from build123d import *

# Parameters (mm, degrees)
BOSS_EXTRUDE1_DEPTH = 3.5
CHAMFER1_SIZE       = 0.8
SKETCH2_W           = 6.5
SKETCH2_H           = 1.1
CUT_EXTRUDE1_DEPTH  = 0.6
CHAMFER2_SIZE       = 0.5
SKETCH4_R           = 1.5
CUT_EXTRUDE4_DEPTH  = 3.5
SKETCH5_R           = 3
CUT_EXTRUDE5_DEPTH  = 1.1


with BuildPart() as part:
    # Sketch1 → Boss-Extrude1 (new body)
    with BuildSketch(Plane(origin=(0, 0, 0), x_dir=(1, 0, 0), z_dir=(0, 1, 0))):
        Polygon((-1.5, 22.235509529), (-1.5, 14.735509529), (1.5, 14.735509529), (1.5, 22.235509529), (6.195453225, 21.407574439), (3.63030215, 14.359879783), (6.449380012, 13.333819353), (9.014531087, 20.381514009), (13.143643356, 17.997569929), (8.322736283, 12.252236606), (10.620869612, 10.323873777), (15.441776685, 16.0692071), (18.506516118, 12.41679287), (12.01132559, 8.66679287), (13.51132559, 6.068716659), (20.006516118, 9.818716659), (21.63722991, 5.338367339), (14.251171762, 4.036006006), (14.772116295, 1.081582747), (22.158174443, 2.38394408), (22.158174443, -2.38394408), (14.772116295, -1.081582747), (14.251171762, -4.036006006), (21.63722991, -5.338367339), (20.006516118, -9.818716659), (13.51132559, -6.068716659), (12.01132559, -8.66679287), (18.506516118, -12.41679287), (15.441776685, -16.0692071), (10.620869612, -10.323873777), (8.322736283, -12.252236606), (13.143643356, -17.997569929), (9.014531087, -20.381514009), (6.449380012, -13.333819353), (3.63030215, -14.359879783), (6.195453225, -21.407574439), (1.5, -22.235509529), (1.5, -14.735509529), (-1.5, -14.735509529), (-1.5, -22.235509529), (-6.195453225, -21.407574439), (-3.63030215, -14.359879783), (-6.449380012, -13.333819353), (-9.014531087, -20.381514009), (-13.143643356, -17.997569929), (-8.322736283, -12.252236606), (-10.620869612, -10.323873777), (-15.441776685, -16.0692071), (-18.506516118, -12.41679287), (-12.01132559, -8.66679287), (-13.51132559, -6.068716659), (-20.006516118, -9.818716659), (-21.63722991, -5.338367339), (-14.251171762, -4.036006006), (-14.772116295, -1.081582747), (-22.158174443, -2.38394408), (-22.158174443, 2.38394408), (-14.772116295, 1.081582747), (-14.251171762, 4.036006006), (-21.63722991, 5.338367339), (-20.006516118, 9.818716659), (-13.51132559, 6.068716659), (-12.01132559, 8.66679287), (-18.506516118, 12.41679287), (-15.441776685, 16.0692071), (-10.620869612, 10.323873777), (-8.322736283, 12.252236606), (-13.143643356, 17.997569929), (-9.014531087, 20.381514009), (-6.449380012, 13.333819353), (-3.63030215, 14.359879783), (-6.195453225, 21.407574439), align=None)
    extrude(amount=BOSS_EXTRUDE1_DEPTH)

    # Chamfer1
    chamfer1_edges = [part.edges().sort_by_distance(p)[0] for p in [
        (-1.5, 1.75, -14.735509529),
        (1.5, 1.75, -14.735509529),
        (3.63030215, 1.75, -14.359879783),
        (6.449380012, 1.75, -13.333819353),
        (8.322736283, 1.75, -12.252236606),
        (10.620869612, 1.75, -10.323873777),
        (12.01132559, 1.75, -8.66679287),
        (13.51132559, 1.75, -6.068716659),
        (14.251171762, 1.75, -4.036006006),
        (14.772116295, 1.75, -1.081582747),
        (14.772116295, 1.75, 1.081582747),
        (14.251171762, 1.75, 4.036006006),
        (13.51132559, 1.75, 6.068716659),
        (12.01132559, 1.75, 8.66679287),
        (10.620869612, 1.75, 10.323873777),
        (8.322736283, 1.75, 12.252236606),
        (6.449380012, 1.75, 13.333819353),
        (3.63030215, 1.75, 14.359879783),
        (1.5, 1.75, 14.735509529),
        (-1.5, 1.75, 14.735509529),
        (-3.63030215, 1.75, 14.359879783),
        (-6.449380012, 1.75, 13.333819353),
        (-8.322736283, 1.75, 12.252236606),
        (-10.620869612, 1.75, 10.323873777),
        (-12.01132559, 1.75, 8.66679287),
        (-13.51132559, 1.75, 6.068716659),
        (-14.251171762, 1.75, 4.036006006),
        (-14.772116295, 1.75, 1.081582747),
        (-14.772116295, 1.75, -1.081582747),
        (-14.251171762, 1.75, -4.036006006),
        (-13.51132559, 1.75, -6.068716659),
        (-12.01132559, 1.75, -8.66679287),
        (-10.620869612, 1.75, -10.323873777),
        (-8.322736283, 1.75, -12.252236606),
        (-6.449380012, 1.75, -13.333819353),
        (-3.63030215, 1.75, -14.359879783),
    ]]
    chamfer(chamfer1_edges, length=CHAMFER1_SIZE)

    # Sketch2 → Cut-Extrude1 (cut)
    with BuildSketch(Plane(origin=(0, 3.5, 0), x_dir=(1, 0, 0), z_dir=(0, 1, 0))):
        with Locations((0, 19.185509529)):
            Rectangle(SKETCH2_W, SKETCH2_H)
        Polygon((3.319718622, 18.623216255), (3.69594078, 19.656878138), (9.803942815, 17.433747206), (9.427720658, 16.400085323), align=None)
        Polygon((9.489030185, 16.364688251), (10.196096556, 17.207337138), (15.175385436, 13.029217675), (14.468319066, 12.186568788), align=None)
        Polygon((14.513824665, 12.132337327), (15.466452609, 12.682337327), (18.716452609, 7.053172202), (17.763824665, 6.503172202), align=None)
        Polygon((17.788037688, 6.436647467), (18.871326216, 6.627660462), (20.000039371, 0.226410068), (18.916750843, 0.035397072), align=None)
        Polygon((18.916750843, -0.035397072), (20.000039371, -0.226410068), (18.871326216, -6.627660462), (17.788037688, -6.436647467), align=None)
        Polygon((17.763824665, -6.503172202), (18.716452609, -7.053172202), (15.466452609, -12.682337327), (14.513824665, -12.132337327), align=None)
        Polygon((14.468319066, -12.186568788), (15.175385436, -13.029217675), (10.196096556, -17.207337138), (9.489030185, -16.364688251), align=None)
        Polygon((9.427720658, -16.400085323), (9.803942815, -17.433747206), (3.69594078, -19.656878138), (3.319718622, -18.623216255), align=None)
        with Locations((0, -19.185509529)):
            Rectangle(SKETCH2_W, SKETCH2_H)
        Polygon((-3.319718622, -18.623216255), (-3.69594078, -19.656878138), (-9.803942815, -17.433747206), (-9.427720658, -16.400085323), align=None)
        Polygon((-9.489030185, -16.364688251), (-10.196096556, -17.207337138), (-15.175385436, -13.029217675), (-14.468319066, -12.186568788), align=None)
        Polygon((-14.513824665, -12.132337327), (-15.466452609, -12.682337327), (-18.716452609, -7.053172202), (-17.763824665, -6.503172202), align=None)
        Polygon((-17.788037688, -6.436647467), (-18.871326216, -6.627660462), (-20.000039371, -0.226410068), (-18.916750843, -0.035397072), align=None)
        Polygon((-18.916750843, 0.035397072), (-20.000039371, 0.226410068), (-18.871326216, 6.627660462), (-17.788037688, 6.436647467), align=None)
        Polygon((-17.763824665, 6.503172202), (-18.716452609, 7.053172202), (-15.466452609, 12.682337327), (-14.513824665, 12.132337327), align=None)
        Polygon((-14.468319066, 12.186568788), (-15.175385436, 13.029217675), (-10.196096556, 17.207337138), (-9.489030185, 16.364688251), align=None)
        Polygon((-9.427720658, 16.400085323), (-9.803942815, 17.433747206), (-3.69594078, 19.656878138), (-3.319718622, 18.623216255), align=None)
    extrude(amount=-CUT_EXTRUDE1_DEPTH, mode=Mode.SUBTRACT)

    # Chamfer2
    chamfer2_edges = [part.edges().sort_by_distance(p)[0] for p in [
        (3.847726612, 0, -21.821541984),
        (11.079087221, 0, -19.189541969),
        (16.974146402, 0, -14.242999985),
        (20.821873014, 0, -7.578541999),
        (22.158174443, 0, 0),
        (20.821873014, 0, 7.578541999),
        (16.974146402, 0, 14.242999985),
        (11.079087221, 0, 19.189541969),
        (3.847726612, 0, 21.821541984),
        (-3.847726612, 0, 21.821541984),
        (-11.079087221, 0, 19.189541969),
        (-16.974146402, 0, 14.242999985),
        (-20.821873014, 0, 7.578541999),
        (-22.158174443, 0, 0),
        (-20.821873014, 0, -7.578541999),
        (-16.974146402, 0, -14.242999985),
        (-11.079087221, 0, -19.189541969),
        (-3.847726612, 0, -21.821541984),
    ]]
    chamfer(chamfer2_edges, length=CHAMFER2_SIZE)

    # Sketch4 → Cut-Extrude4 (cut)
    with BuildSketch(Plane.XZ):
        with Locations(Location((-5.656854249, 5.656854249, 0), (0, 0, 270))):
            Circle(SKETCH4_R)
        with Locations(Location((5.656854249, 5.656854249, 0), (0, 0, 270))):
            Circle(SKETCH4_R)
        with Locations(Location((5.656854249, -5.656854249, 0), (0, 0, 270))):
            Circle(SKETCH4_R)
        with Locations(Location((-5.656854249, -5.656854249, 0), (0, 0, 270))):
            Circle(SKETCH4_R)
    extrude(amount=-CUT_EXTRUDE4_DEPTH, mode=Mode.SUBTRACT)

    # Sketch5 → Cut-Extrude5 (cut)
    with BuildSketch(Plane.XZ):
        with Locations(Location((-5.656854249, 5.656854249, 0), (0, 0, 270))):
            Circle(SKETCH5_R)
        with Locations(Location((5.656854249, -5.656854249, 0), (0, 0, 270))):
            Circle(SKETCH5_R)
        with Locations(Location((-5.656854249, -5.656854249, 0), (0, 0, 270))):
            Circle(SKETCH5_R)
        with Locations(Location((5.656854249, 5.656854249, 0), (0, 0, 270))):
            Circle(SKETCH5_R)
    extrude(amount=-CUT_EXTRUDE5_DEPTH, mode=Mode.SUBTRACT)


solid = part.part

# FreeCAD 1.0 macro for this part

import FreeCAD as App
import Part
import Sketcher
Q = App.Units.Quantity


def edges_at(feature, points):
    """Names of the edges that pass closest to the given points."""
    edges = feature.Shape.Edges
    near = lambda p: min(range(len(edges)), key=lambda i: edges[i].distToShape(Part.Vertex(*p))[0])
    return sorted({f"Edge{near(p) + 1}" for p in points})


def add_polygon(sketch, points):
    """Adds a closed chain of lines whose ends are joined by coincident constraints."""
    first, n = sketch.GeometryCount, len(points)
    for a, b in zip(points, points[1:] + points[:1]):
        sketch.addGeometry(Part.LineSegment(App.Vector(*a, 0), App.Vector(*b, 0)), False)
    for i in range(n):
        sketch.addConstraint(Sketcher.Constraint("Coincident", first + i, 2, first + (i + 1) % n, 1))

doc = App.newDocument("Part")
body = doc.addObject("PartDesign::Body", "Body")

sketch1 = body.newObject("Sketcher::SketchObject", "Sketch")
sketch1.AttachmentSupport = (doc.getObject("XZ_Plane"), [""])
sketch1.MapMode = "FlatFace"
add_polygon(sketch1, [(-1.5, -14.7), (-1.5, -22.2), (-6.2, -21.4), (-3.6, -14.4), (-6.4, -13.3), (-9, -20.4), (-13.1, -18), (-8.3, -12.3), (-10.6, -10.3), (-15.4, -16.1), (-18.5, -12.4), (-12, -8.7), (-13.5, -6.1), (-20, -9.8), (-21.6, -5.3), (-14.3, -4), (-14.8, -1.1), (-22.2, -2.4), (-22.2, 2.4), (-14.8, 1.1), (-14.3, 4), (-21.6, 5.3), (-20, 9.8), (-13.5, 6.1), (-12, 8.7), (-18.5, 12.4), (-15.4, 16.1), (-10.6, 10.3), (-8.3, 12.3), (-13.1, 18), (-9, 20.4), (-6.4, 13.3), (-3.6, 14.4), (-6.2, 21.4), (-1.5, 22.2), (-1.5, 14.7), (1.5, 14.7), (1.5, 22.2), (6.2, 21.4), (3.6, 14.4), (6.4, 13.3), (9, 20.4), (13.1, 18), (8.3, 12.3), (10.6, 10.3), (15.4, 16.1), (18.5, 12.4), (12, 8.7), (13.5, 6.1), (20, 9.8), (21.6, 5.3), (14.3, 4), (14.8, 1.1), (22.2, 2.4), (22.2, -2.4), (14.8, -1.1), (14.3, -4), (21.6, -5.3), (20, -9.8), (13.5, -6.1), (12, -8.7), (18.5, -12.4), (15.4, -16.1), (10.6, -10.3), (8.3, -12.3), (13.1, -18), (9, -20.4), (6.4, -13.3), (3.6, -14.4), (6.2, -21.4), (1.5, -22.2), (1.5, -14.7)])
sketch1.addConstraint(Sketcher.Constraint("Vertical", 0))
sketch1.addConstraint(Sketcher.Constraint("Vertical", 17))
sketch1.addConstraint(Sketcher.Constraint("Vertical", 34))
sketch1.addConstraint(Sketcher.Constraint("Horizontal", 35))
sketch1.addConstraint(Sketcher.Constraint("Vertical", 36))
sketch1.addConstraint(Sketcher.Constraint("Vertical", 53))
sketch1.addConstraint(Sketcher.Constraint("Vertical", 70))
sketch1.addConstraint(Sketcher.Constraint("Horizontal", 71))
sketch1.addConstraint(Sketcher.Constraint("Symmetric", 0, 2, 36, 2, -1, 1))
sketch1.addConstraint(Sketcher.Constraint("Symmetric", 1, 2, 37, 2, -1, 1))
sketch1.addConstraint(Sketcher.Constraint("Symmetric", 2, 2, 38, 2, -1, 1))
sketch1.addConstraint(Sketcher.Constraint("Symmetric", 3, 2, 39, 2, -1, 1))
sketch1.addConstraint(Sketcher.Constraint("Symmetric", 4, 2, 40, 2, -1, 1))
sketch1.addConstraint(Sketcher.Constraint("Symmetric", 5, 2, 41, 2, -1, 1))
sketch1.addConstraint(Sketcher.Constraint("Symmetric", 6, 2, 42, 2, -1, 1))
sketch1.addConstraint(Sketcher.Constraint("Symmetric", 7, 2, 43, 2, -1, 1))
sketch1.addConstraint(Sketcher.Constraint("Symmetric", 8, 2, 44, 2, -1, 1))
sketch1.addConstraint(Sketcher.Constraint("Symmetric", 9, 2, 45, 2, -1, 1))
sketch1.addConstraint(Sketcher.Constraint("Symmetric", 10, 2, 46, 2, -1, 1))
sketch1.addConstraint(Sketcher.Constraint("Symmetric", 11, 2, 47, 2, -1, 1))
sketch1.addConstraint(Sketcher.Constraint("Symmetric", 12, 2, 48, 2, -1, 1))
sketch1.addConstraint(Sketcher.Constraint("Symmetric", 13, 2, 49, 2, -1, 1))
sketch1.addConstraint(Sketcher.Constraint("Symmetric", 14, 2, 50, 2, -1, 1))
sketch1.addConstraint(Sketcher.Constraint("Symmetric", 15, 2, 51, 2, -1, 1))
sketch1.addConstraint(Sketcher.Constraint("Symmetric", 16, 2, 52, 2, -1, 1))
sketch1.addConstraint(Sketcher.Constraint("Symmetric", 18, 2, 54, 2, -1, 1))
sketch1.addConstraint(Sketcher.Constraint("Symmetric", 19, 2, 55, 2, -1, 1))
sketch1.addConstraint(Sketcher.Constraint("Symmetric", 20, 2, 56, 2, -1, 1))
sketch1.addConstraint(Sketcher.Constraint("Symmetric", 21, 2, 57, 2, -1, 1))
sketch1.addConstraint(Sketcher.Constraint("Symmetric", 22, 2, 58, 2, -1, 1))
sketch1.addConstraint(Sketcher.Constraint("Symmetric", 23, 2, 59, 2, -1, 1))
sketch1.addConstraint(Sketcher.Constraint("Symmetric", 24, 2, 60, 2, -1, 1))
sketch1.addConstraint(Sketcher.Constraint("Symmetric", 25, 2, 61, 2, -1, 1))
sketch1.addConstraint(Sketcher.Constraint("Symmetric", 26, 2, 62, 2, -1, 1))
sketch1.addConstraint(Sketcher.Constraint("Symmetric", 27, 2, 63, 2, -1, 1))
sketch1.addConstraint(Sketcher.Constraint("Symmetric", 28, 2, 64, 2, -1, 1))
sketch1.addConstraint(Sketcher.Constraint("Symmetric", 29, 2, 65, 2, -1, 1))
sketch1.addConstraint(Sketcher.Constraint("Symmetric", 30, 2, 66, 2, -1, 1))
sketch1.addConstraint(Sketcher.Constraint("Symmetric", 31, 2, 67, 2, -1, 1))
sketch1.addConstraint(Sketcher.Constraint("Symmetric", 32, 2, 68, 2, -1, 1))
sketch1.addConstraint(Sketcher.Constraint("Symmetric", 33, 2, 69, 2, -1, 1))
sketch1.addConstraint(Sketcher.Constraint("Symmetric", 33, 2, 36, 2, -2))
sketch1.addConstraint(Sketcher.Constraint("Symmetric", 32, 2, 37, 2, -2))
sketch1.addConstraint(Sketcher.Constraint("Symmetric", 31, 2, 38, 2, -2))
sketch1.addConstraint(Sketcher.Constraint("Symmetric", 30, 2, 39, 2, -2))
sketch1.addConstraint(Sketcher.Constraint("Symmetric", 29, 2, 40, 2, -2))
sketch1.addConstraint(Sketcher.Constraint("Symmetric", 28, 2, 41, 2, -2))
sketch1.addConstraint(Sketcher.Constraint("Symmetric", 27, 2, 42, 2, -2))
sketch1.addConstraint(Sketcher.Constraint("Symmetric", 26, 2, 43, 2, -2))
sketch1.addConstraint(Sketcher.Constraint("Symmetric", 25, 2, 44, 2, -2))
sketch1.addConstraint(Sketcher.Constraint("Symmetric", 24, 2, 45, 2, -2))
sketch1.addConstraint(Sketcher.Constraint("Symmetric", 23, 2, 46, 2, -2))
sketch1.addConstraint(Sketcher.Constraint("Symmetric", 22, 2, 47, 2, -2))
sketch1.addConstraint(Sketcher.Constraint("Symmetric", 21, 2, 48, 2, -2))
sketch1.addConstraint(Sketcher.Constraint("Symmetric", 20, 2, 49, 2, -2))
sketch1.addConstraint(Sketcher.Constraint("Symmetric", 19, 2, 50, 2, -2))
sketch1.addConstraint(Sketcher.Constraint("Symmetric", 18, 2, 51, 2, -2))
sketch1.addConstraint(Sketcher.Constraint("Perpendicular", 2, 3))
sketch1.addConstraint(Sketcher.Constraint("Perpendicular", 3, 4))
sketch1.addConstraint(Sketcher.Constraint("Perpendicular", 6, 7))
sketch1.addConstraint(Sketcher.Constraint("Perpendicular", 7, 8))
sketch1.addConstraint(Sketcher.Constraint("Perpendicular", 10, 11))
sketch1.addConstraint(Sketcher.Constraint("Perpendicular", 11, 12))
sketch1.addConstraint(Sketcher.Constraint("Perpendicular", 14, 15))
sketch1.addConstraint(Sketcher.Constraint("Perpendicular", 15, 16))
sketch1.addConstraint(Sketcher.Constraint("Parallel", 1, 18))
sketch1.addConstraint(Sketcher.Constraint("Perpendicular", 18, 19))
sketch1.addConstraint(Sketcher.Constraint("Parallel", 4, 21))
sketch1.addConstraint(Sketcher.Constraint("Parallel", 5, 22))
sketch1.addConstraint(Sketcher.Constraint("Parallel", 8, 25))
sketch1.addConstraint(Sketcher.Constraint("Parallel", 37, 54))
sketch1.addConstraint(Sketcher.Constraint("Equal", 0, 34))
sketch1.addConstraint(Sketcher.Constraint("Equal", 2, 4))
sketch1.addConstraint(Sketcher.Constraint("Equal", 1, 5))
sketch1.addConstraint(Sketcher.Constraint("Equal", 4, 6))
sketch1.addConstraint(Sketcher.Constraint("Equal", 3, 7))
sketch1.addConstraint(Sketcher.Constraint("Equal", 6, 8))
sketch1.addConstraint(Sketcher.Constraint("Equal", 5, 9))
sketch1.addConstraint(Sketcher.Constraint("Equal", 8, 10))
sketch1.addConstraint(Sketcher.Constraint("Equal", 7, 11))
sketch1.addConstraint(Sketcher.Constraint("Equal", 10, 12))
sketch1.addConstraint(Sketcher.Constraint("Equal", 9, 13))
sketch1.addConstraint(Sketcher.Constraint("Equal", 12, 14))
sketch1.addConstraint(Sketcher.Constraint("Equal", 11, 15))
sketch1.addConstraint(Sketcher.Constraint("Equal", 14, 16))
sketch1.addConstraint(Sketcher.Constraint("DistanceX", 35, 1, 35, 2, 3.0))
sketch1.addConstraint(Sketcher.Constraint("Angle", 1, Q("170 deg")))
sketch1.addConstraint(Sketcher.Constraint("Angle", 2, Q("70 deg")))
sketch1.addConstraint(Sketcher.Constraint("Angle", 5, Q("150 deg")))
sketch1.addConstraint(Sketcher.Constraint("Angle", 6, Q("50 deg")))
sketch1.addConstraint(Sketcher.Constraint("Distance", 3, 3.0))
sketch1.addConstraint(Sketcher.Constraint("DistanceY", 0, 2, 0, 1, 7.5))
sketch1.addConstraint(Sketcher.Constraint("Distance", 2, 7.5))
sketch1.addConstraint(Sketcher.Constraint("DistanceY", 17, 1, 17, 2, 4.767888))
sketch1.addConstraint(Sketcher.Constraint("Distance", 1, 4.767888))
pad1 = body.newObject("PartDesign::Pad", "Pad")
pad1.Profile = sketch1
pad1.Length = 3.5
pad1.Reversed = True
doc.recompute()

chamfer = body.newObject("PartDesign::Chamfer", "Chamfer")
chamfer.Base = (pad1, edges_at(pad1, [
    (-1.5, 1.75, -14.736),
    (1.5, 1.75, -14.736),
    (3.63, 1.75, -14.36),
    (6.449, 1.75, -13.334),
    (8.323, 1.75, -12.252),
    (10.621, 1.75, -10.324),
    (12.011, 1.75, -8.667),
    (13.511, 1.75, -6.069),
    (14.251, 1.75, -4.036),
    (14.772, 1.75, -1.082),
    (14.772, 1.75, 1.082),
    (14.251, 1.75, 4.036),
    (13.511, 1.75, 6.069),
    (12.011, 1.75, 8.667),
    (10.621, 1.75, 10.324),
    (8.323, 1.75, 12.252),
    (6.449, 1.75, 13.334),
    (3.63, 1.75, 14.36),
    (1.5, 1.75, 14.736),
    (-1.5, 1.75, 14.736),
    (-3.63, 1.75, 14.36),
    (-6.449, 1.75, 13.334),
    (-8.323, 1.75, 12.252),
    (-10.621, 1.75, 10.324),
    (-12.011, 1.75, 8.667),
    (-13.511, 1.75, 6.069),
    (-14.251, 1.75, 4.036),
    (-14.772, 1.75, 1.082),
    (-14.772, 1.75, -1.082),
    (-14.251, 1.75, -4.036),
    (-13.511, 1.75, -6.069),
    (-12.011, 1.75, -8.667),
    (-10.621, 1.75, -10.324),
    (-8.323, 1.75, -12.252),
    (-6.449, 1.75, -13.334),
    (-3.63, 1.75, -14.36),
]))
chamfer.Size = 0.8

sketch2 = body.newObject("Sketcher::SketchObject", "Sketch001")
sketch2.AttachmentSupport = (doc.getObject("XZ_Plane"), [""])
sketch2.MapMode = "FlatFace"
sketch2.AttachmentOffset = App.Placement(App.Vector(0, 0, -3.5), App.Rotation())
add_polygon(sketch2, [(-3.2, -19.7), (-3.2, -18.6), (3.2, -18.6), (3.2, -19.7)])
add_polygon(sketch2, [(3.7, -19.7), (3.3, -18.6), (9.4, -16.4), (9.8, -17.4)])
add_polygon(sketch2, [(10.2, -17.2), (9.5, -16.4), (14.5, -12.2), (15.2, -13)])
add_polygon(sketch2, [(15.5, -12.7), (14.5, -12.1), (17.8, -6.5), (18.7, -7.1)])
add_polygon(sketch2, [(18.9, -6.6), (17.8, -6.4), (18.9, 0), (20, -0.2)])
add_polygon(sketch2, [(20, 0.2), (18.9, 0), (17.8, 6.4), (18.9, 6.6)])
add_polygon(sketch2, [(18.7, 7.1), (17.8, 6.5), (14.5, 12.1), (15.5, 12.7)])
add_polygon(sketch2, [(15.2, 13), (14.5, 12.2), (9.5, 16.4), (10.2, 17.2)])
add_polygon(sketch2, [(9.8, 17.4), (9.4, 16.4), (3.3, 18.6), (3.7, 19.7)])
add_polygon(sketch2, [(-3.2, 18.6), (-3.2, 19.7), (3.2, 19.7), (3.2, 18.6)])
add_polygon(sketch2, [(-3.7, 19.7), (-3.3, 18.6), (-9.4, 16.4), (-9.8, 17.4)])
add_polygon(sketch2, [(-10.2, 17.2), (-9.5, 16.4), (-14.5, 12.2), (-15.2, 13)])
add_polygon(sketch2, [(-15.5, 12.7), (-14.5, 12.1), (-17.8, 6.5), (-18.7, 7.1)])
add_polygon(sketch2, [(-18.9, 6.6), (-17.8, 6.4), (-18.9, 0), (-20, 0.2)])
add_polygon(sketch2, [(-20, -0.2), (-18.9, 0), (-17.8, -6.4), (-18.9, -6.6)])
add_polygon(sketch2, [(-18.7, -7.1), (-17.8, -6.5), (-14.5, -12.1), (-15.5, -12.7)])
add_polygon(sketch2, [(-15.2, -13), (-14.5, -12.2), (-9.5, -16.4), (-10.2, -17.2)])
add_polygon(sketch2, [(-9.8, -17.4), (-9.4, -16.4), (-3.3, -18.6), (-3.7, -19.7)])
sketch2.addConstraint(Sketcher.Constraint("Vertical", 0))
sketch2.addConstraint(Sketcher.Constraint("Horizontal", 1))
sketch2.addConstraint(Sketcher.Constraint("Vertical", 2))
sketch2.addConstraint(Sketcher.Constraint("Horizontal", 3))
sketch2.addConstraint(Sketcher.Constraint("Vertical", 36))
sketch2.addConstraint(Sketcher.Constraint("Horizontal", 37))
sketch2.addConstraint(Sketcher.Constraint("Vertical", 38))
sketch2.addConstraint(Sketcher.Constraint("Horizontal", 39))
sketch2.addConstraint(Sketcher.Constraint("Symmetric", 2, 2, 36, 2, -1, 1))
sketch2.addConstraint(Sketcher.Constraint("Symmetric", 0, 2, 38, 2, -1, 1))
sketch2.addConstraint(Sketcher.Constraint("Symmetric", 4, 2, 40, 2, -1, 1))
sketch2.addConstraint(Sketcher.Constraint("Symmetric", 5, 2, 41, 2, -1, 1))
sketch2.addConstraint(Sketcher.Constraint("Symmetric", 6, 2, 42, 2, -1, 1))
sketch2.addConstraint(Sketcher.Constraint("Symmetric", 7, 2, 43, 2, -1, 1))
sketch2.addConstraint(Sketcher.Constraint("Symmetric", 8, 2, 44, 2, -1, 1))
sketch2.addConstraint(Sketcher.Constraint("Symmetric", 9, 2, 45, 2, -1, 1))
sketch2.addConstraint(Sketcher.Constraint("Symmetric", 10, 2, 46, 2, -1, 1))
sketch2.addConstraint(Sketcher.Constraint("Symmetric", 11, 2, 47, 2, -1, 1))
sketch2.addConstraint(Sketcher.Constraint("Symmetric", 12, 2, 48, 2, -1, 1))
sketch2.addConstraint(Sketcher.Constraint("Symmetric", 13, 2, 49, 2, -1, 1))
sketch2.addConstraint(Sketcher.Constraint("Symmetric", 14, 2, 50, 2, -1, 1))
sketch2.addConstraint(Sketcher.Constraint("Symmetric", 15, 2, 51, 2, -1, 1))
sketch2.addConstraint(Sketcher.Constraint("Symmetric", 16, 2, 52, 2, -1, 1))
sketch2.addConstraint(Sketcher.Constraint("Symmetric", 17, 2, 53, 2, -1, 1))
sketch2.addConstraint(Sketcher.Constraint("Symmetric", 18, 2, 54, 2, -1, 1))
sketch2.addConstraint(Sketcher.Constraint("Symmetric", 19, 2, 55, 2, -1, 1))
sketch2.addConstraint(Sketcher.Constraint("Symmetric", 20, 2, 56, 2, -1, 1))
sketch2.addConstraint(Sketcher.Constraint("Symmetric", 21, 2, 57, 2, -1, 1))
sketch2.addConstraint(Sketcher.Constraint("Symmetric", 22, 2, 58, 2, -1, 1))
sketch2.addConstraint(Sketcher.Constraint("Symmetric", 23, 2, 59, 2, -1, 1))
sketch2.addConstraint(Sketcher.Constraint("Symmetric", 24, 2, 60, 2, -1, 1))
sketch2.addConstraint(Sketcher.Constraint("Symmetric", 25, 2, 61, 2, -1, 1))
sketch2.addConstraint(Sketcher.Constraint("Symmetric", 26, 2, 62, 2, -1, 1))
sketch2.addConstraint(Sketcher.Constraint("Symmetric", 27, 2, 63, 2, -1, 1))
sketch2.addConstraint(Sketcher.Constraint("Symmetric", 28, 2, 64, 2, -1, 1))
sketch2.addConstraint(Sketcher.Constraint("Symmetric", 29, 2, 65, 2, -1, 1))
sketch2.addConstraint(Sketcher.Constraint("Symmetric", 30, 2, 66, 2, -1, 1))
sketch2.addConstraint(Sketcher.Constraint("Symmetric", 31, 2, 67, 2, -1, 1))
sketch2.addConstraint(Sketcher.Constraint("Symmetric", 32, 2, 68, 2, -1, 1))
sketch2.addConstraint(Sketcher.Constraint("Symmetric", 33, 2, 69, 2, -1, 1))
sketch2.addConstraint(Sketcher.Constraint("Symmetric", 34, 2, 70, 2, -1, 1))
sketch2.addConstraint(Sketcher.Constraint("Symmetric", 35, 2, 71, 2, -1, 1))
sketch2.addConstraint(Sketcher.Constraint("Symmetric", 33, 2, 40, 2, -2))
sketch2.addConstraint(Sketcher.Constraint("Symmetric", 32, 2, 41, 2, -2))
sketch2.addConstraint(Sketcher.Constraint("Symmetric", 35, 2, 42, 2, -2))
sketch2.addConstraint(Sketcher.Constraint("Symmetric", 34, 2, 43, 2, -2))
sketch2.addConstraint(Sketcher.Constraint("Symmetric", 29, 2, 44, 2, -2))
sketch2.addConstraint(Sketcher.Constraint("Symmetric", 28, 2, 45, 2, -2))
sketch2.addConstraint(Sketcher.Constraint("Symmetric", 31, 2, 46, 2, -2))
sketch2.addConstraint(Sketcher.Constraint("Symmetric", 30, 2, 47, 2, -2))
sketch2.addConstraint(Sketcher.Constraint("Symmetric", 25, 2, 48, 2, -2))
sketch2.addConstraint(Sketcher.Constraint("Symmetric", 24, 2, 49, 2, -2))
sketch2.addConstraint(Sketcher.Constraint("Symmetric", 27, 2, 50, 2, -2))
sketch2.addConstraint(Sketcher.Constraint("Symmetric", 26, 2, 51, 2, -2))
sketch2.addConstraint(Sketcher.Constraint("Symmetric", 21, 2, 52, 2, -2))
sketch2.addConstraint(Sketcher.Constraint("Symmetric", 20, 2, 53, 2, -2))
sketch2.addConstraint(Sketcher.Constraint("Symmetric", 23, 2, 54, 2, -2))
sketch2.addConstraint(Sketcher.Constraint("Symmetric", 22, 2, 55, 2, -2))
sketch2.addConstraint(Sketcher.Constraint("Perpendicular", 4, 5))
sketch2.addConstraint(Sketcher.Constraint("Perpendicular", 5, 6))
sketch2.addConstraint(Sketcher.Constraint("Perpendicular", 6, 7))
sketch2.addConstraint(Sketcher.Constraint("Perpendicular", 8, 9))
sketch2.addConstraint(Sketcher.Constraint("Perpendicular", 9, 10))
sketch2.addConstraint(Sketcher.Constraint("Perpendicular", 10, 11))
sketch2.addConstraint(Sketcher.Constraint("Perpendicular", 12, 13))
sketch2.addConstraint(Sketcher.Constraint("Perpendicular", 13, 14))
sketch2.addConstraint(Sketcher.Constraint("Perpendicular", 14, 15))
sketch2.addConstraint(Sketcher.Constraint("Perpendicular", 16, 17))
sketch2.addConstraint(Sketcher.Constraint("Perpendicular", 17, 18))
sketch2.addConstraint(Sketcher.Constraint("Perpendicular", 18, 19))
sketch2.addConstraint(Sketcher.Constraint("Vertical", 3, 2, 36, 2))
sketch2.addConstraint(Sketcher.Constraint("Equal", 6, 8))
sketch2.addConstraint(Sketcher.Constraint("Equal", 7, 9))
sketch2.addConstraint(Sketcher.Constraint("Equal", 10, 12))
sketch2.addConstraint(Sketcher.Constraint("Equal", 11, 13))
sketch2.addConstraint(Sketcher.Constraint("Equal", 14, 16))
sketch2.addConstraint(Sketcher.Constraint("Equal", 15, 17))
sketch2.addConstraint(Sketcher.Constraint("Angle", 4, Q("110 deg")))
sketch2.addConstraint(Sketcher.Constraint("Angle", 8, Q("130 deg")))
sketch2.addConstraint(Sketcher.Constraint("Angle", 12, Q("150 deg")))
sketch2.addConstraint(Sketcher.Constraint("Angle", 16, Q("170 deg")))
sketch2.addConstraint(Sketcher.Constraint("DistanceX", 1, 1, 1, 2, 6.5))
sketch2.addConstraint(Sketcher.Constraint("DistanceY", 0, 1, 0, 2, 1.1))
sketch2.addConstraint(Sketcher.Constraint("Distance", 4, 1.1))
sketch2.addConstraint(Sketcher.Constraint("Distance", 5, 6.5))
sketch2.addConstraint(Sketcher.Constraint("DistanceY", 0, 2, -1, 1, 18.63551))
sketch2.addConstraint(Sketcher.Constraint("DistanceX", -1, 1, 4, 2, 3.319719))
sketch2.addConstraint(Sketcher.Constraint("DistanceY", 7, 2, -1, 1, 19.656878))
sketch2.addConstraint(Sketcher.Constraint("DistanceX", -1, 1, 8, 2, 9.48903))
sketch2.addConstraint(Sketcher.Constraint("DistanceY", 8, 2, -1, 1, 16.364688))
sketch2.addConstraint(Sketcher.Constraint("DistanceX", -1, 1, 17, 2, 18.916751))
sketch2.addConstraint(Sketcher.Constraint("DistanceY", 18, 2, -1, 1, 0.22641))
sketch2.addConstraint(Sketcher.Constraint("DistanceX", -1, 1, 12, 2, 14.513825))
sketch2.addConstraint(Sketcher.Constraint("DistanceY", 12, 2, -1, 1, 12.132337))
pocket1 = body.newObject("PartDesign::Pocket", "Pocket")
pocket1.Profile = sketch2
pocket1.Length = 0.6
pocket1.Reversed = True
doc.recompute()

chamfer2 = body.newObject("PartDesign::Chamfer", "Chamfer001")
chamfer2.Base = (pocket1, edges_at(pocket1, [
    (3.848, 0, -21.822),
    (11.079, 0, -19.19),
    (16.974, 0, -14.243),
    (20.822, 0, -7.579),
    (22.158, 0, 0),
    (20.822, 0, 7.579),
    (16.974, 0, 14.243),
    (11.079, 0, 19.19),
    (3.848, 0, 21.822),
    (-3.848, 0, 21.822),
    (-11.079, 0, 19.19),
    (-16.974, 0, 14.243),
    (-20.822, 0, 7.579),
    (-22.158, 0, 0),
    (-20.822, 0, -7.579),
    (-16.974, 0, -14.243),
    (-11.079, 0, -19.19),
    (-3.848, 0, -21.822),
]))
chamfer2.Size = 0.5

sketch3 = body.newObject("Sketcher::SketchObject", "Sketch002")
sketch3.AttachmentSupport = (doc.getObject("XZ_Plane"), [""])
sketch3.MapMode = "FlatFace"
sketch3.addGeometry(Part.Circle(App.Vector(-5.7, 5.7, 0), App.Vector(0, 0, 1), 1.5), False)
sketch3.addGeometry(Part.Circle(App.Vector(5.7, 5.7, 0), App.Vector(0, 0, 1), 1.5), False)
sketch3.addGeometry(Part.Circle(App.Vector(5.7, -5.7, 0), App.Vector(0, 0, 1), 1.5), False)
sketch3.addGeometry(Part.Circle(App.Vector(-5.7, -5.7, 0), App.Vector(0, 0, 1), 1.5), False)
sketch3.addConstraint(Sketcher.Constraint("Equal", 0, 1))
sketch3.addConstraint(Sketcher.Constraint("Equal", 1, 2))
sketch3.addConstraint(Sketcher.Constraint("Equal", 2, 3))
sketch3.addConstraint(Sketcher.Constraint("Symmetric", 0, 3, 2, 3, -1, 1))
sketch3.addConstraint(Sketcher.Constraint("Symmetric", 1, 3, 3, 3, -1, 1))
sketch3.addConstraint(Sketcher.Constraint("Symmetric", 0, 3, 1, 3, -2))
sketch3.addConstraint(Sketcher.Constraint("Diameter", 0, 3.0))
sketch3.addConstraint(Sketcher.Constraint("DistanceX", 0, 3, 1, 3, 11.313708))
sketch3.addConstraint(Sketcher.Constraint("DistanceY", 2, 3, 1, 3, 11.313708))
pocket2 = body.newObject("PartDesign::Pocket", "Pocket001")
pocket2.Profile = sketch3
pocket2.Length = 3.5

sketch4 = body.newObject("Sketcher::SketchObject", "Sketch003")
sketch4.AttachmentSupport = (doc.getObject("XZ_Plane"), [""])
sketch4.MapMode = "FlatFace"
sketch4.addGeometry(Part.Circle(App.Vector(-5.7, 5.7, 0), App.Vector(0, 0, 1), 3), False)
sketch4.addGeometry(Part.Circle(App.Vector(5.7, -5.7, 0), App.Vector(0, 0, 1), 3), False)
sketch4.addGeometry(Part.Circle(App.Vector(-5.7, -5.7, 0), App.Vector(0, 0, 1), 3), False)
sketch4.addGeometry(Part.Circle(App.Vector(5.7, 5.7, 0), App.Vector(0, 0, 1), 3), False)
sketch4.addConstraint(Sketcher.Constraint("Equal", 0, 1))
sketch4.addConstraint(Sketcher.Constraint("Equal", 1, 2))
sketch4.addConstraint(Sketcher.Constraint("Equal", 2, 3))
sketch4.addConstraint(Sketcher.Constraint("Symmetric", 0, 3, 1, 3, -1, 1))
sketch4.addConstraint(Sketcher.Constraint("Symmetric", 2, 3, 3, 3, -1, 1))
sketch4.addConstraint(Sketcher.Constraint("Symmetric", 1, 3, 2, 3, -2))
sketch4.addConstraint(Sketcher.Constraint("Diameter", 0, 6.0))
sketch4.addConstraint(Sketcher.Constraint("DistanceX", 0, 3, 1, 3, 11.313708))
sketch4.addConstraint(Sketcher.Constraint("DistanceY", 1, 3, 0, 3, 11.313708))
pocket3 = body.newObject("PartDesign::Pocket", "Pocket002")
pocket3.Profile = sketch4
pocket3.Length = 1.1

doc.recompute()
